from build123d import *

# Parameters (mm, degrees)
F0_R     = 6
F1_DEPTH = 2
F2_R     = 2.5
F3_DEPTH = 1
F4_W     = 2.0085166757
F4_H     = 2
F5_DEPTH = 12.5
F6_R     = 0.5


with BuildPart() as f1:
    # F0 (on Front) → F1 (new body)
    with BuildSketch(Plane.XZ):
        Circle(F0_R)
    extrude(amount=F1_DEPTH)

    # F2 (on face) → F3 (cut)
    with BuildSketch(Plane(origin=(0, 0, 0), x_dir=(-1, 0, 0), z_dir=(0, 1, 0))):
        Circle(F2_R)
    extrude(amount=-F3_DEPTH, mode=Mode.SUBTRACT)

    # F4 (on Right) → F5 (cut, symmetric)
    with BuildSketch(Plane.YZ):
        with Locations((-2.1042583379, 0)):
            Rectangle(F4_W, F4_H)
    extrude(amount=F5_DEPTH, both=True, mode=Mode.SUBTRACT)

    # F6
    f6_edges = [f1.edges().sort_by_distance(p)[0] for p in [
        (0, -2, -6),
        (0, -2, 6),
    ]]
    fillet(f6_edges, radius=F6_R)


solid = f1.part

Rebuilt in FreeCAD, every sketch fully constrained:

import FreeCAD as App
import Part
import Sketcher
from FreeCAD import Vector


def edges_at(feature, points):
    """Names of the edges that pass closest to the given points."""
    edges = feature.Shape.Edges
    near = lambda p: min(range(len(edges)), key=lambda i: edges[i].distToShape(Part.Vertex(*p))[0])
    return sorted({f"Edge{near(p) + 1}" for p in points})

doc = App.newDocument("Part")
body = doc.addObject("PartDesign::Body", "Body")

# Sketch on XZ plane
sketch1 = body.newObject("Sketcher::SketchObject", "Sketch")
sketch1.AttachmentSupport = (doc.getObject("XZ_Plane"), [""])
sketch1.MapMode = "FlatFace"
sketch1.addGeometry(Part.Circle(Vector(0, 0, 0), Vector(0, 0, 1), 6), False)
sketch1.addConstraint(Sketcher.Constraint("Coincident", 0, 3, -1, 1))
sketch1.addConstraint(Sketcher.Constraint("Diameter", 0, 12.0))
pad1 = body.newObject("PartDesign::Pad", "Pad")
pad1.Profile = sketch1
pad1.Length = 2

# Sketch on XZ plane
sketch2 = body.newObject("Sketcher::SketchObject", "Sketch001")
sketch2.AttachmentSupport = (doc.getObject("XZ_Plane"), [""])
sketch2.MapMode = "FlatFace"
sketch2.addGeometry(Part.Circle(Vector(0, 0, 0), Vector(0, 0, 1), 2.5), False)
sketch2.addConstraint(Sketcher.Constraint("Coincident", 0, 3, -1, 1))
sketch2.addConstraint(Sketcher.Constraint("Diameter", 0, 5.0))
pocket1 = body.newObject("PartDesign::Pocket", "Pocket")
pocket1.Profile = sketch2
pocket1.Length = 1
pocket1.Reversed = True

# Sketch on YZ plane
sketch3 = body.newObject("Sketcher::SketchObject", "Sketch002")
sketch3.AttachmentSupport = (doc.getObject("YZ_Plane"), [""])
sketch3.MapMode = "FlatFace"
sketch3.addGeometry(Part.LineSegment(Vector(-3.108517, 1, 0), Vector(-3.108517, -1, 0)), False)
sketch3.addGeometry(Part.LineSegment(Vector(-3.108517, -1, 0), Vector(-1.1, -1, 0)), False)
sketch3.addGeometry(Part.LineSegment(Vector(-1.1, -1, 0), Vector(-1.1, 1, 0)), False)
sketch3.addGeometry(Part.LineSegment(Vector(-1.1, 1, 0), Vector(-3.108517, 1, 0)), False)
sketch3.addConstraint(Sketcher.Constraint("Coincident", 0, 2, 1, 1))
sketch3.addConstraint(Sketcher.Constraint("Coincident", 1, 2, 2, 1))
sketch3.addConstraint(Sketcher.Constraint("Coincident", 2, 2, 3, 1))
sketch3.addConstraint(Sketcher.Constraint("Coincident", 3, 2, 0, 1))
sketch3.addConstraint(Sketcher.Constraint("Vertical", 0))
sketch3.addConstraint(Sketcher.Constraint("Horizontal", 1))
sketch3.addConstraint(Sketcher.Constraint("Vertical", 2))
sketch3.addConstraint(Sketcher.Constraint("Horizontal", 3))
sketch3.addConstraint(Sketcher.Constraint("DistanceY", 0, 2, 0, 1, 2.0))
sketch3.addConstraint(Sketcher.Constraint("DistanceY", 0, 2, -1, 1, 1.0))
sketch3.addConstraint(Sketcher.Constraint("DistanceX", 1, 2, -1, 1, 1.1))
sketch3.addConstraint(Sketcher.Constraint("DistanceX", 1, 1, 1, 2, 2.008517))
pocket2 = body.newObject("PartDesign::Pocket", "Pocket001")
pocket2.Profile = sketch3
pocket2.Length = 25
pocket2.Midplane = True
doc.recompute()

fillet = body.newObject("PartDesign::Fillet", "Fillet")
fillet.Base = (pocket2, edges_at(pocket2, [(0, -2, -6), (0, -2, 6)]))
fillet.Radius = 0.5

doc.recompute()
